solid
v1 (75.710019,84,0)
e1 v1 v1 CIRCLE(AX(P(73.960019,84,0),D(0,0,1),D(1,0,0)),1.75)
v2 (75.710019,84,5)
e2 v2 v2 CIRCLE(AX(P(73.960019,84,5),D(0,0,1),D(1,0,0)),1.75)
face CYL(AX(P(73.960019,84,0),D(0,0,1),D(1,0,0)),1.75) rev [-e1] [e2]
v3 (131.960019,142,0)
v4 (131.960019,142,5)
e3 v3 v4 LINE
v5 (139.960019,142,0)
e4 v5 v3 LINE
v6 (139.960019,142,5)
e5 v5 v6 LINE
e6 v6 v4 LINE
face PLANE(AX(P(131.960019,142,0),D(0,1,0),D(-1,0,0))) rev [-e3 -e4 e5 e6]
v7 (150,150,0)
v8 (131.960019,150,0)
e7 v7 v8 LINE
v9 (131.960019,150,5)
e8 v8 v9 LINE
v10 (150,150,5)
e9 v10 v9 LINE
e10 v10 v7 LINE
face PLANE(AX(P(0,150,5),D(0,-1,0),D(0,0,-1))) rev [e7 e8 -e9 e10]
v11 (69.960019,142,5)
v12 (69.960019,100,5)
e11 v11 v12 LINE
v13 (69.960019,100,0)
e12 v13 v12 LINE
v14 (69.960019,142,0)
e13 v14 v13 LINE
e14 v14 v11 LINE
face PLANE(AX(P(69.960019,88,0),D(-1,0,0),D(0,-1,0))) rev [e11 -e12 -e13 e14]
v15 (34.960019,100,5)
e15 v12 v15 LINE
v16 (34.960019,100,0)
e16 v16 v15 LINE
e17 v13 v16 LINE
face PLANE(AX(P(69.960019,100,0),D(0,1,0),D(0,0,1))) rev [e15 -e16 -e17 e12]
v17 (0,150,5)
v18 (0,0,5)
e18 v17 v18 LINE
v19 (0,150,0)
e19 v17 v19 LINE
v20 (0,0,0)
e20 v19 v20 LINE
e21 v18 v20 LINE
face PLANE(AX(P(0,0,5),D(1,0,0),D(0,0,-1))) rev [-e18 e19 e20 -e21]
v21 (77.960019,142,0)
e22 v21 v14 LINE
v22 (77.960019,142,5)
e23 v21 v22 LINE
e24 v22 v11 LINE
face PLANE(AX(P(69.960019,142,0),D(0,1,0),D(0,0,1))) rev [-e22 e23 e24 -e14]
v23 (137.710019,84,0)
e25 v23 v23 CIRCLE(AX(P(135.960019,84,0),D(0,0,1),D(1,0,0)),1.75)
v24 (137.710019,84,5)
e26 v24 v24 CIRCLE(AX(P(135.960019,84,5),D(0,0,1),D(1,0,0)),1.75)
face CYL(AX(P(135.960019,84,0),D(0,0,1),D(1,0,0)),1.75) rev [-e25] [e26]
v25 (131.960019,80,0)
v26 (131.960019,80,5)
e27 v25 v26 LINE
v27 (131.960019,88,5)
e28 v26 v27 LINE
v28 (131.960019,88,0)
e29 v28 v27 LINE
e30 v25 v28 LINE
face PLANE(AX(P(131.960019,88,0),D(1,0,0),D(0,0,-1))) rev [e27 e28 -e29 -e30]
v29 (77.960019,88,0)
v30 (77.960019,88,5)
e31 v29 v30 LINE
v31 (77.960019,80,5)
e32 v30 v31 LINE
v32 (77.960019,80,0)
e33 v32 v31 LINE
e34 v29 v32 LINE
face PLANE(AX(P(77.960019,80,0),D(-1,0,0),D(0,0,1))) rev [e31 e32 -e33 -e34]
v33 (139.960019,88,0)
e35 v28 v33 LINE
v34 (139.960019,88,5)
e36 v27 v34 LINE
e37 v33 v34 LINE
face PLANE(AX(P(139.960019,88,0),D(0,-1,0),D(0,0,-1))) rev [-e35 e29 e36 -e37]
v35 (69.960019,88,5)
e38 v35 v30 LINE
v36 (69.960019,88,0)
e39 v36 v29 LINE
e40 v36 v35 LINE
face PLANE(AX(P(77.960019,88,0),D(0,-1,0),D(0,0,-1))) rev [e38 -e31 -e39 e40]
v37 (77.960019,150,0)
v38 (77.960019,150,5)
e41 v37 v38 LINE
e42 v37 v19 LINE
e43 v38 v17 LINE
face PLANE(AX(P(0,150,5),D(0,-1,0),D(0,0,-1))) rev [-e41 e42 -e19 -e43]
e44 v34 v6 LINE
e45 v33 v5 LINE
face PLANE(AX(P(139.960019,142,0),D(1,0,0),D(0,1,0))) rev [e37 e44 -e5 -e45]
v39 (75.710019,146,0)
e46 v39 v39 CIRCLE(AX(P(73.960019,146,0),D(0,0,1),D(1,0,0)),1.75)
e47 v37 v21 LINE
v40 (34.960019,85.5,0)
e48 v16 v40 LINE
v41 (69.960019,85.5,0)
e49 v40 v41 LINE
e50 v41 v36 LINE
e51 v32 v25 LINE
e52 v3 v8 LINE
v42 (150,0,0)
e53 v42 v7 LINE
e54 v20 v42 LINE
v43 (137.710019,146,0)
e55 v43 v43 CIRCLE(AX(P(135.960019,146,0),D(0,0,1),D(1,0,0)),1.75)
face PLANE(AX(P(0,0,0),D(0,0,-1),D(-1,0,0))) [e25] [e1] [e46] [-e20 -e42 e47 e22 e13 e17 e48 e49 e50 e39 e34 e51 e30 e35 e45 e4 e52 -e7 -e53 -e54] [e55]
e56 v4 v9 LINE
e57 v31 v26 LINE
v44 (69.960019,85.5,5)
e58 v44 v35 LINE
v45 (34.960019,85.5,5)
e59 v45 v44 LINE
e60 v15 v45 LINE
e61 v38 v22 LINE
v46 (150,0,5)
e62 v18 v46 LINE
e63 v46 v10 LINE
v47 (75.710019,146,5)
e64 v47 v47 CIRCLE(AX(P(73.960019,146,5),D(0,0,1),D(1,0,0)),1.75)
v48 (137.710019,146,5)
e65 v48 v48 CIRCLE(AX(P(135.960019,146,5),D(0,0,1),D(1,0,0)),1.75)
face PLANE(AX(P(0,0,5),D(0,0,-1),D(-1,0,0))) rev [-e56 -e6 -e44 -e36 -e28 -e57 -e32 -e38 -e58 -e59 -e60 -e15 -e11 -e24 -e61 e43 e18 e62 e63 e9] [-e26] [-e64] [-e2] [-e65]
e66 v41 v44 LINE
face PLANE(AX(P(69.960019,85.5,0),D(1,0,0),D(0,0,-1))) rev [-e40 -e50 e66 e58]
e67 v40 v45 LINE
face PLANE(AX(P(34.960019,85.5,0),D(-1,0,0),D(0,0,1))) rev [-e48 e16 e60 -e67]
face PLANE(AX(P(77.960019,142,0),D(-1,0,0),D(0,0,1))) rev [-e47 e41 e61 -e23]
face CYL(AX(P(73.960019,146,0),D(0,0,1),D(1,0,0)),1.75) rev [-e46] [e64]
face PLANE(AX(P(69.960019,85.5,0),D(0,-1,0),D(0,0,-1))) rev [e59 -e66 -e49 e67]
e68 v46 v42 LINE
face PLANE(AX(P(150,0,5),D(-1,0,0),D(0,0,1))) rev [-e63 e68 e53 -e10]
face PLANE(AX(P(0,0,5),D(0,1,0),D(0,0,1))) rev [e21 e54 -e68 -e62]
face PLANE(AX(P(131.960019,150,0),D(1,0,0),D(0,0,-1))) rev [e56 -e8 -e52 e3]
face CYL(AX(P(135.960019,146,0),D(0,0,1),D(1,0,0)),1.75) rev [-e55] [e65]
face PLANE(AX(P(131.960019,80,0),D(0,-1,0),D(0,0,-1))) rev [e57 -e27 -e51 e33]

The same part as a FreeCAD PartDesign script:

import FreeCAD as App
import Part
import Sketcher
from FreeCAD import Vector

doc = App.newDocument("Part")
body = doc.addObject("PartDesign::Body", "Body")

# Sketch on XY plane
sketch1 = body.newObject("Sketcher::SketchObject", "Sketch")
sketch1.AttachmentSupport = (doc.getObject("XY_Plane"), [""])
sketch1.MapMode = "FlatFace"
sketch1.addGeometry([
    Part.LineSegment(Vector(0, 150, 0), Vector(0, 0, 0)),
    Part.LineSegment(Vector(0, 0, 0), Vector(150, 0, 0)),
    Part.LineSegment(Vector(150, 0, 0), Vector(150, 150, 0)),
    Part.LineSegment(Vector(150, 150, 0), Vector(0, 150, 0)),
], False)
sketch1.addConstraint([
    Sketcher.Constraint("Coincident", 0, 2, 1, 1),
    Sketcher.Constraint("Coincident", 1, 2, 2, 1),
    Sketcher.Constraint("Coincident", 2, 2, 3, 1),
    Sketcher.Constraint("Coincident", 3, 2, 0, 1),
    Sketcher.Constraint("Vertical", 0),
    Sketcher.Constraint("Horizontal", 1),
    Sketcher.Constraint("Vertical", 2),
    Sketcher.Constraint("Horizontal", 3),
    Sketcher.Constraint("Coincident", 0, 2, -1, 1),
    Sketcher.Constraint("Equal", 3, 0),
    Sketcher.Constraint("DistanceX", 1, 1, 1, 2, 150.0),
])
pad1 = body.newObject("PartDesign::Pad", "Pad")
pad1.Profile = sketch1
pad1.Length = 5

# Sketch on XY plane
sketch2 = body.newObject("Sketcher::SketchObject", "Sketch001")
sketch2.AttachmentSupport = (doc.getObject("XY_Plane"), [""])
sketch2.MapMode = "FlatFace"
sketch2.AttachmentOffset = App.Placement(Vector(0, 0, 5), App.Rotation())
sketch2.addGeometry([
    Part.Circle(Vector(73.960019, 84, 0), Vector(0, 0, 1), 1.75),  # 0
    Part.Circle(Vector(73.960019, 146, 0), Vector(0, 0, 1), 1.75),  # 1
    Part.Circle(Vector(135.960019, 146, 0), Vector(0, 0, 1), 1.75),  # 2
    Part.Circle(Vector(135.960019, 84, 0), Vector(0, 0, 1), 1.75),  # 3
    Part.LineSegment(Vector(131.960019, 150, 0), Vector(77.960019, 150, 0)),  # 4
    Part.LineSegment(Vector(77.960019, 150, 0), Vector(77.960019, 142, 0)),  # 5
    Part.LineSegment(Vector(77.960019, 142, 0), Vector(69.960019, 142, 0)),  # 6
    Part.LineSegment(Vector(69.960019, 142, 0), Vector(69.960019, 88, 0)),  # 7
    Part.LineSegment(Vector(69.960019, 88, 0), Vector(77.960019, 88, 0)),  # 8
    Part.LineSegment(Vector(77.960019, 88, 0), Vector(77.960019, 80, 0)),  # 9
    Part.LineSegment(Vector(77.960019, 80, 0), Vector(131.960019, 80, 0)),  # 10
    Part.LineSegment(Vector(131.960019, 80, 0), Vector(131.960019, 88, 0)),  # 11
    Part.LineSegment(Vector(131.960019, 88, 0), Vector(139.960019, 88, 0)),  # 12
    Part.LineSegment(Vector(139.960019, 88, 0), Vector(139.960019, 142, 0)),  # 13
    Part.LineSegment(Vector(139.960019, 142, 0), Vector(131.960019, 142, 0)),  # 14
    Part.LineSegment(Vector(131.960019, 142, 0), Vector(131.960019, 150, 0)),  # 15
], False)
sketch2.addConstraint([
    Sketcher.Constraint("Coincident", 4, 2, 5, 1),
    Sketcher.Constraint("Coincident", 5, 2, 6, 1),
    Sketcher.Constraint("Coincident", 6, 2, 7, 1),
    Sketcher.Constraint("Coincident", 7, 2, 8, 1),
    Sketcher.Constraint("Coincident", 8, 2, 9, 1),
    Sketcher.Constraint("Coincident", 9, 2, 10, 1),
    Sketcher.Constraint("Coincident", 10, 2, 11, 1),
    Sketcher.Constraint("Coincident", 11, 2, 12, 1),
    Sketcher.Constraint("Coincident", 12, 2, 13, 1),
    Sketcher.Constraint("Coincident", 13, 2, 14, 1),
    Sketcher.Constraint("Coincident", 14, 2, 15, 1),
    Sketcher.Constraint("Coincident", 15, 2, 4, 1),
    Sketcher.Constraint("Horizontal", 4),
    Sketcher.Constraint("Vertical", 5),
    Sketcher.Constraint("Horizontal", 6),
    Sketcher.Constraint("Vertical", 7),
    Sketcher.Constraint("Horizontal", 8),
    Sketcher.Constraint("Vertical", 9),
    Sketcher.Constraint("Horizontal", 10),
    Sketcher.Constraint("Vertical", 11),
    Sketcher.Constraint("Horizontal", 12),
    Sketcher.Constraint("Vertical", 13),
    Sketcher.Constraint("Horizontal", 14),
    Sketcher.Constraint("Vertical", 15),
    Sketcher.Constraint("Equal", 0, 1),
    Sketcher.Constraint("Equal", 1, 2),
    Sketcher.Constraint("Equal", 2, 3),
    Sketcher.Constraint("Horizontal", 1, 3, 2, 3),
    Sketcher.Constraint("Horizontal", 0, 3, 3, 3),
    Sketcher.Constraint("Horizontal", 8, 2, 11, 2),
    Sketcher.Constraint("Horizontal", 6, 2, 13, 2),
    Sketcher.Constraint("Vertical", 0, 3, 1, 3),
    Sketcher.Constraint("Vertical", 2, 3, 3, 3),
    Sketcher.Constraint("Vertical", 5, 2, 8, 2),
    Sketcher.Constraint("Vertical", 11, 2, 14, 2),
    Sketcher.Constraint("Equal", 8, 12),
    Sketcher.Constraint("Equal", 14, 5),
    Sketcher.Constraint("Equal", 10, 7),
    Sketcher.Constraint("Equal", 5, 9),
    Sketcher.Constraint("Diameter", 0, 3.5),
    Sketcher.Constraint("DistanceX", 4, 2, 4, 1, 54.0),
    Sketcher.Constraint("DistanceX", 6, 2, 6, 1, 8.0),
    Sketcher.Constraint("DistanceY", -1, 1, 0, 3, 84.0),
    Sketcher.Constraint("DistanceY", -1, 1, 1, 3, 146.0),
    Sketcher.Constraint("DistanceY", -1, 1, 4, 2, 150.0),
    Sketcher.Constraint("DistanceX", 1, 3, 2, 3, 62.0),
    Sketcher.Constraint("DistanceX", 1, 3, 4, 2, 4.0),
    Sketcher.Constraint("DistanceX", -1, 1, 0, 3, 73.960019),
])
pocket1 = body.newObject("PartDesign::Pocket", "Pocket")
pocket1.Profile = sketch2
pocket1.Type = "ThroughAll"

# Sketch on XY plane
sketch3 = body.newObject("Sketcher::SketchObject", "Sketch002")
sketch3.AttachmentSupport = (doc.getObject("XY_Plane"), [""])
sketch3.MapMode = "FlatFace"
sketch3.AttachmentOffset = App.Placement(Vector(0, 0, 5), App.Rotation())
sketch3.addGeometry([
    Part.LineSegment(Vector(34.960019, 100, 0), Vector(34.960019, 85.5, 0)),
    Part.LineSegment(Vector(34.960019, 85.5, 0), Vector(69.960019, 85.5, 0)),
    Part.LineSegment(Vector(69.960019, 85.5, 0), Vector(69.960019, 100, 0)),
    Part.LineSegment(Vector(69.960019, 100, 0), Vector(34.960019, 100, 0)),
], False)
sketch3.addConstraint([
    Sketcher.Constraint("Coincident", 0, 2, 1, 1),
    Sketcher.Constraint("Coincident", 1, 2, 2, 1),
    Sketcher.Constraint("Coincident", 2, 2, 3, 1),
    Sketcher.Constraint("Coincident", 3, 2, 0, 1),
    Sketcher.Constraint("Vertical", 0),
    Sketcher.Constraint("Horizontal", 1),
    Sketcher.Constraint("Vertical", 2),
    Sketcher.Constraint("Horizontal", 3),
    Sketcher.Constraint("DistanceX", 1, 1, 1, 2, 35.0),
    Sketcher.Constraint("DistanceY", 0, 2, 0, 1, 14.5),
    Sketcher.Constraint("DistanceY", -1, 1, 2, 2, 100.0),
    Sketcher.Constraint("DistanceX", -1, 1, 0, 2, 34.960019),
])
pocket2 = body.newObject("PartDesign::Pocket", "Pocket001")
pocket2.Profile = sketch3
pocket2.Type = "ThroughAll"

doc.recompute()
